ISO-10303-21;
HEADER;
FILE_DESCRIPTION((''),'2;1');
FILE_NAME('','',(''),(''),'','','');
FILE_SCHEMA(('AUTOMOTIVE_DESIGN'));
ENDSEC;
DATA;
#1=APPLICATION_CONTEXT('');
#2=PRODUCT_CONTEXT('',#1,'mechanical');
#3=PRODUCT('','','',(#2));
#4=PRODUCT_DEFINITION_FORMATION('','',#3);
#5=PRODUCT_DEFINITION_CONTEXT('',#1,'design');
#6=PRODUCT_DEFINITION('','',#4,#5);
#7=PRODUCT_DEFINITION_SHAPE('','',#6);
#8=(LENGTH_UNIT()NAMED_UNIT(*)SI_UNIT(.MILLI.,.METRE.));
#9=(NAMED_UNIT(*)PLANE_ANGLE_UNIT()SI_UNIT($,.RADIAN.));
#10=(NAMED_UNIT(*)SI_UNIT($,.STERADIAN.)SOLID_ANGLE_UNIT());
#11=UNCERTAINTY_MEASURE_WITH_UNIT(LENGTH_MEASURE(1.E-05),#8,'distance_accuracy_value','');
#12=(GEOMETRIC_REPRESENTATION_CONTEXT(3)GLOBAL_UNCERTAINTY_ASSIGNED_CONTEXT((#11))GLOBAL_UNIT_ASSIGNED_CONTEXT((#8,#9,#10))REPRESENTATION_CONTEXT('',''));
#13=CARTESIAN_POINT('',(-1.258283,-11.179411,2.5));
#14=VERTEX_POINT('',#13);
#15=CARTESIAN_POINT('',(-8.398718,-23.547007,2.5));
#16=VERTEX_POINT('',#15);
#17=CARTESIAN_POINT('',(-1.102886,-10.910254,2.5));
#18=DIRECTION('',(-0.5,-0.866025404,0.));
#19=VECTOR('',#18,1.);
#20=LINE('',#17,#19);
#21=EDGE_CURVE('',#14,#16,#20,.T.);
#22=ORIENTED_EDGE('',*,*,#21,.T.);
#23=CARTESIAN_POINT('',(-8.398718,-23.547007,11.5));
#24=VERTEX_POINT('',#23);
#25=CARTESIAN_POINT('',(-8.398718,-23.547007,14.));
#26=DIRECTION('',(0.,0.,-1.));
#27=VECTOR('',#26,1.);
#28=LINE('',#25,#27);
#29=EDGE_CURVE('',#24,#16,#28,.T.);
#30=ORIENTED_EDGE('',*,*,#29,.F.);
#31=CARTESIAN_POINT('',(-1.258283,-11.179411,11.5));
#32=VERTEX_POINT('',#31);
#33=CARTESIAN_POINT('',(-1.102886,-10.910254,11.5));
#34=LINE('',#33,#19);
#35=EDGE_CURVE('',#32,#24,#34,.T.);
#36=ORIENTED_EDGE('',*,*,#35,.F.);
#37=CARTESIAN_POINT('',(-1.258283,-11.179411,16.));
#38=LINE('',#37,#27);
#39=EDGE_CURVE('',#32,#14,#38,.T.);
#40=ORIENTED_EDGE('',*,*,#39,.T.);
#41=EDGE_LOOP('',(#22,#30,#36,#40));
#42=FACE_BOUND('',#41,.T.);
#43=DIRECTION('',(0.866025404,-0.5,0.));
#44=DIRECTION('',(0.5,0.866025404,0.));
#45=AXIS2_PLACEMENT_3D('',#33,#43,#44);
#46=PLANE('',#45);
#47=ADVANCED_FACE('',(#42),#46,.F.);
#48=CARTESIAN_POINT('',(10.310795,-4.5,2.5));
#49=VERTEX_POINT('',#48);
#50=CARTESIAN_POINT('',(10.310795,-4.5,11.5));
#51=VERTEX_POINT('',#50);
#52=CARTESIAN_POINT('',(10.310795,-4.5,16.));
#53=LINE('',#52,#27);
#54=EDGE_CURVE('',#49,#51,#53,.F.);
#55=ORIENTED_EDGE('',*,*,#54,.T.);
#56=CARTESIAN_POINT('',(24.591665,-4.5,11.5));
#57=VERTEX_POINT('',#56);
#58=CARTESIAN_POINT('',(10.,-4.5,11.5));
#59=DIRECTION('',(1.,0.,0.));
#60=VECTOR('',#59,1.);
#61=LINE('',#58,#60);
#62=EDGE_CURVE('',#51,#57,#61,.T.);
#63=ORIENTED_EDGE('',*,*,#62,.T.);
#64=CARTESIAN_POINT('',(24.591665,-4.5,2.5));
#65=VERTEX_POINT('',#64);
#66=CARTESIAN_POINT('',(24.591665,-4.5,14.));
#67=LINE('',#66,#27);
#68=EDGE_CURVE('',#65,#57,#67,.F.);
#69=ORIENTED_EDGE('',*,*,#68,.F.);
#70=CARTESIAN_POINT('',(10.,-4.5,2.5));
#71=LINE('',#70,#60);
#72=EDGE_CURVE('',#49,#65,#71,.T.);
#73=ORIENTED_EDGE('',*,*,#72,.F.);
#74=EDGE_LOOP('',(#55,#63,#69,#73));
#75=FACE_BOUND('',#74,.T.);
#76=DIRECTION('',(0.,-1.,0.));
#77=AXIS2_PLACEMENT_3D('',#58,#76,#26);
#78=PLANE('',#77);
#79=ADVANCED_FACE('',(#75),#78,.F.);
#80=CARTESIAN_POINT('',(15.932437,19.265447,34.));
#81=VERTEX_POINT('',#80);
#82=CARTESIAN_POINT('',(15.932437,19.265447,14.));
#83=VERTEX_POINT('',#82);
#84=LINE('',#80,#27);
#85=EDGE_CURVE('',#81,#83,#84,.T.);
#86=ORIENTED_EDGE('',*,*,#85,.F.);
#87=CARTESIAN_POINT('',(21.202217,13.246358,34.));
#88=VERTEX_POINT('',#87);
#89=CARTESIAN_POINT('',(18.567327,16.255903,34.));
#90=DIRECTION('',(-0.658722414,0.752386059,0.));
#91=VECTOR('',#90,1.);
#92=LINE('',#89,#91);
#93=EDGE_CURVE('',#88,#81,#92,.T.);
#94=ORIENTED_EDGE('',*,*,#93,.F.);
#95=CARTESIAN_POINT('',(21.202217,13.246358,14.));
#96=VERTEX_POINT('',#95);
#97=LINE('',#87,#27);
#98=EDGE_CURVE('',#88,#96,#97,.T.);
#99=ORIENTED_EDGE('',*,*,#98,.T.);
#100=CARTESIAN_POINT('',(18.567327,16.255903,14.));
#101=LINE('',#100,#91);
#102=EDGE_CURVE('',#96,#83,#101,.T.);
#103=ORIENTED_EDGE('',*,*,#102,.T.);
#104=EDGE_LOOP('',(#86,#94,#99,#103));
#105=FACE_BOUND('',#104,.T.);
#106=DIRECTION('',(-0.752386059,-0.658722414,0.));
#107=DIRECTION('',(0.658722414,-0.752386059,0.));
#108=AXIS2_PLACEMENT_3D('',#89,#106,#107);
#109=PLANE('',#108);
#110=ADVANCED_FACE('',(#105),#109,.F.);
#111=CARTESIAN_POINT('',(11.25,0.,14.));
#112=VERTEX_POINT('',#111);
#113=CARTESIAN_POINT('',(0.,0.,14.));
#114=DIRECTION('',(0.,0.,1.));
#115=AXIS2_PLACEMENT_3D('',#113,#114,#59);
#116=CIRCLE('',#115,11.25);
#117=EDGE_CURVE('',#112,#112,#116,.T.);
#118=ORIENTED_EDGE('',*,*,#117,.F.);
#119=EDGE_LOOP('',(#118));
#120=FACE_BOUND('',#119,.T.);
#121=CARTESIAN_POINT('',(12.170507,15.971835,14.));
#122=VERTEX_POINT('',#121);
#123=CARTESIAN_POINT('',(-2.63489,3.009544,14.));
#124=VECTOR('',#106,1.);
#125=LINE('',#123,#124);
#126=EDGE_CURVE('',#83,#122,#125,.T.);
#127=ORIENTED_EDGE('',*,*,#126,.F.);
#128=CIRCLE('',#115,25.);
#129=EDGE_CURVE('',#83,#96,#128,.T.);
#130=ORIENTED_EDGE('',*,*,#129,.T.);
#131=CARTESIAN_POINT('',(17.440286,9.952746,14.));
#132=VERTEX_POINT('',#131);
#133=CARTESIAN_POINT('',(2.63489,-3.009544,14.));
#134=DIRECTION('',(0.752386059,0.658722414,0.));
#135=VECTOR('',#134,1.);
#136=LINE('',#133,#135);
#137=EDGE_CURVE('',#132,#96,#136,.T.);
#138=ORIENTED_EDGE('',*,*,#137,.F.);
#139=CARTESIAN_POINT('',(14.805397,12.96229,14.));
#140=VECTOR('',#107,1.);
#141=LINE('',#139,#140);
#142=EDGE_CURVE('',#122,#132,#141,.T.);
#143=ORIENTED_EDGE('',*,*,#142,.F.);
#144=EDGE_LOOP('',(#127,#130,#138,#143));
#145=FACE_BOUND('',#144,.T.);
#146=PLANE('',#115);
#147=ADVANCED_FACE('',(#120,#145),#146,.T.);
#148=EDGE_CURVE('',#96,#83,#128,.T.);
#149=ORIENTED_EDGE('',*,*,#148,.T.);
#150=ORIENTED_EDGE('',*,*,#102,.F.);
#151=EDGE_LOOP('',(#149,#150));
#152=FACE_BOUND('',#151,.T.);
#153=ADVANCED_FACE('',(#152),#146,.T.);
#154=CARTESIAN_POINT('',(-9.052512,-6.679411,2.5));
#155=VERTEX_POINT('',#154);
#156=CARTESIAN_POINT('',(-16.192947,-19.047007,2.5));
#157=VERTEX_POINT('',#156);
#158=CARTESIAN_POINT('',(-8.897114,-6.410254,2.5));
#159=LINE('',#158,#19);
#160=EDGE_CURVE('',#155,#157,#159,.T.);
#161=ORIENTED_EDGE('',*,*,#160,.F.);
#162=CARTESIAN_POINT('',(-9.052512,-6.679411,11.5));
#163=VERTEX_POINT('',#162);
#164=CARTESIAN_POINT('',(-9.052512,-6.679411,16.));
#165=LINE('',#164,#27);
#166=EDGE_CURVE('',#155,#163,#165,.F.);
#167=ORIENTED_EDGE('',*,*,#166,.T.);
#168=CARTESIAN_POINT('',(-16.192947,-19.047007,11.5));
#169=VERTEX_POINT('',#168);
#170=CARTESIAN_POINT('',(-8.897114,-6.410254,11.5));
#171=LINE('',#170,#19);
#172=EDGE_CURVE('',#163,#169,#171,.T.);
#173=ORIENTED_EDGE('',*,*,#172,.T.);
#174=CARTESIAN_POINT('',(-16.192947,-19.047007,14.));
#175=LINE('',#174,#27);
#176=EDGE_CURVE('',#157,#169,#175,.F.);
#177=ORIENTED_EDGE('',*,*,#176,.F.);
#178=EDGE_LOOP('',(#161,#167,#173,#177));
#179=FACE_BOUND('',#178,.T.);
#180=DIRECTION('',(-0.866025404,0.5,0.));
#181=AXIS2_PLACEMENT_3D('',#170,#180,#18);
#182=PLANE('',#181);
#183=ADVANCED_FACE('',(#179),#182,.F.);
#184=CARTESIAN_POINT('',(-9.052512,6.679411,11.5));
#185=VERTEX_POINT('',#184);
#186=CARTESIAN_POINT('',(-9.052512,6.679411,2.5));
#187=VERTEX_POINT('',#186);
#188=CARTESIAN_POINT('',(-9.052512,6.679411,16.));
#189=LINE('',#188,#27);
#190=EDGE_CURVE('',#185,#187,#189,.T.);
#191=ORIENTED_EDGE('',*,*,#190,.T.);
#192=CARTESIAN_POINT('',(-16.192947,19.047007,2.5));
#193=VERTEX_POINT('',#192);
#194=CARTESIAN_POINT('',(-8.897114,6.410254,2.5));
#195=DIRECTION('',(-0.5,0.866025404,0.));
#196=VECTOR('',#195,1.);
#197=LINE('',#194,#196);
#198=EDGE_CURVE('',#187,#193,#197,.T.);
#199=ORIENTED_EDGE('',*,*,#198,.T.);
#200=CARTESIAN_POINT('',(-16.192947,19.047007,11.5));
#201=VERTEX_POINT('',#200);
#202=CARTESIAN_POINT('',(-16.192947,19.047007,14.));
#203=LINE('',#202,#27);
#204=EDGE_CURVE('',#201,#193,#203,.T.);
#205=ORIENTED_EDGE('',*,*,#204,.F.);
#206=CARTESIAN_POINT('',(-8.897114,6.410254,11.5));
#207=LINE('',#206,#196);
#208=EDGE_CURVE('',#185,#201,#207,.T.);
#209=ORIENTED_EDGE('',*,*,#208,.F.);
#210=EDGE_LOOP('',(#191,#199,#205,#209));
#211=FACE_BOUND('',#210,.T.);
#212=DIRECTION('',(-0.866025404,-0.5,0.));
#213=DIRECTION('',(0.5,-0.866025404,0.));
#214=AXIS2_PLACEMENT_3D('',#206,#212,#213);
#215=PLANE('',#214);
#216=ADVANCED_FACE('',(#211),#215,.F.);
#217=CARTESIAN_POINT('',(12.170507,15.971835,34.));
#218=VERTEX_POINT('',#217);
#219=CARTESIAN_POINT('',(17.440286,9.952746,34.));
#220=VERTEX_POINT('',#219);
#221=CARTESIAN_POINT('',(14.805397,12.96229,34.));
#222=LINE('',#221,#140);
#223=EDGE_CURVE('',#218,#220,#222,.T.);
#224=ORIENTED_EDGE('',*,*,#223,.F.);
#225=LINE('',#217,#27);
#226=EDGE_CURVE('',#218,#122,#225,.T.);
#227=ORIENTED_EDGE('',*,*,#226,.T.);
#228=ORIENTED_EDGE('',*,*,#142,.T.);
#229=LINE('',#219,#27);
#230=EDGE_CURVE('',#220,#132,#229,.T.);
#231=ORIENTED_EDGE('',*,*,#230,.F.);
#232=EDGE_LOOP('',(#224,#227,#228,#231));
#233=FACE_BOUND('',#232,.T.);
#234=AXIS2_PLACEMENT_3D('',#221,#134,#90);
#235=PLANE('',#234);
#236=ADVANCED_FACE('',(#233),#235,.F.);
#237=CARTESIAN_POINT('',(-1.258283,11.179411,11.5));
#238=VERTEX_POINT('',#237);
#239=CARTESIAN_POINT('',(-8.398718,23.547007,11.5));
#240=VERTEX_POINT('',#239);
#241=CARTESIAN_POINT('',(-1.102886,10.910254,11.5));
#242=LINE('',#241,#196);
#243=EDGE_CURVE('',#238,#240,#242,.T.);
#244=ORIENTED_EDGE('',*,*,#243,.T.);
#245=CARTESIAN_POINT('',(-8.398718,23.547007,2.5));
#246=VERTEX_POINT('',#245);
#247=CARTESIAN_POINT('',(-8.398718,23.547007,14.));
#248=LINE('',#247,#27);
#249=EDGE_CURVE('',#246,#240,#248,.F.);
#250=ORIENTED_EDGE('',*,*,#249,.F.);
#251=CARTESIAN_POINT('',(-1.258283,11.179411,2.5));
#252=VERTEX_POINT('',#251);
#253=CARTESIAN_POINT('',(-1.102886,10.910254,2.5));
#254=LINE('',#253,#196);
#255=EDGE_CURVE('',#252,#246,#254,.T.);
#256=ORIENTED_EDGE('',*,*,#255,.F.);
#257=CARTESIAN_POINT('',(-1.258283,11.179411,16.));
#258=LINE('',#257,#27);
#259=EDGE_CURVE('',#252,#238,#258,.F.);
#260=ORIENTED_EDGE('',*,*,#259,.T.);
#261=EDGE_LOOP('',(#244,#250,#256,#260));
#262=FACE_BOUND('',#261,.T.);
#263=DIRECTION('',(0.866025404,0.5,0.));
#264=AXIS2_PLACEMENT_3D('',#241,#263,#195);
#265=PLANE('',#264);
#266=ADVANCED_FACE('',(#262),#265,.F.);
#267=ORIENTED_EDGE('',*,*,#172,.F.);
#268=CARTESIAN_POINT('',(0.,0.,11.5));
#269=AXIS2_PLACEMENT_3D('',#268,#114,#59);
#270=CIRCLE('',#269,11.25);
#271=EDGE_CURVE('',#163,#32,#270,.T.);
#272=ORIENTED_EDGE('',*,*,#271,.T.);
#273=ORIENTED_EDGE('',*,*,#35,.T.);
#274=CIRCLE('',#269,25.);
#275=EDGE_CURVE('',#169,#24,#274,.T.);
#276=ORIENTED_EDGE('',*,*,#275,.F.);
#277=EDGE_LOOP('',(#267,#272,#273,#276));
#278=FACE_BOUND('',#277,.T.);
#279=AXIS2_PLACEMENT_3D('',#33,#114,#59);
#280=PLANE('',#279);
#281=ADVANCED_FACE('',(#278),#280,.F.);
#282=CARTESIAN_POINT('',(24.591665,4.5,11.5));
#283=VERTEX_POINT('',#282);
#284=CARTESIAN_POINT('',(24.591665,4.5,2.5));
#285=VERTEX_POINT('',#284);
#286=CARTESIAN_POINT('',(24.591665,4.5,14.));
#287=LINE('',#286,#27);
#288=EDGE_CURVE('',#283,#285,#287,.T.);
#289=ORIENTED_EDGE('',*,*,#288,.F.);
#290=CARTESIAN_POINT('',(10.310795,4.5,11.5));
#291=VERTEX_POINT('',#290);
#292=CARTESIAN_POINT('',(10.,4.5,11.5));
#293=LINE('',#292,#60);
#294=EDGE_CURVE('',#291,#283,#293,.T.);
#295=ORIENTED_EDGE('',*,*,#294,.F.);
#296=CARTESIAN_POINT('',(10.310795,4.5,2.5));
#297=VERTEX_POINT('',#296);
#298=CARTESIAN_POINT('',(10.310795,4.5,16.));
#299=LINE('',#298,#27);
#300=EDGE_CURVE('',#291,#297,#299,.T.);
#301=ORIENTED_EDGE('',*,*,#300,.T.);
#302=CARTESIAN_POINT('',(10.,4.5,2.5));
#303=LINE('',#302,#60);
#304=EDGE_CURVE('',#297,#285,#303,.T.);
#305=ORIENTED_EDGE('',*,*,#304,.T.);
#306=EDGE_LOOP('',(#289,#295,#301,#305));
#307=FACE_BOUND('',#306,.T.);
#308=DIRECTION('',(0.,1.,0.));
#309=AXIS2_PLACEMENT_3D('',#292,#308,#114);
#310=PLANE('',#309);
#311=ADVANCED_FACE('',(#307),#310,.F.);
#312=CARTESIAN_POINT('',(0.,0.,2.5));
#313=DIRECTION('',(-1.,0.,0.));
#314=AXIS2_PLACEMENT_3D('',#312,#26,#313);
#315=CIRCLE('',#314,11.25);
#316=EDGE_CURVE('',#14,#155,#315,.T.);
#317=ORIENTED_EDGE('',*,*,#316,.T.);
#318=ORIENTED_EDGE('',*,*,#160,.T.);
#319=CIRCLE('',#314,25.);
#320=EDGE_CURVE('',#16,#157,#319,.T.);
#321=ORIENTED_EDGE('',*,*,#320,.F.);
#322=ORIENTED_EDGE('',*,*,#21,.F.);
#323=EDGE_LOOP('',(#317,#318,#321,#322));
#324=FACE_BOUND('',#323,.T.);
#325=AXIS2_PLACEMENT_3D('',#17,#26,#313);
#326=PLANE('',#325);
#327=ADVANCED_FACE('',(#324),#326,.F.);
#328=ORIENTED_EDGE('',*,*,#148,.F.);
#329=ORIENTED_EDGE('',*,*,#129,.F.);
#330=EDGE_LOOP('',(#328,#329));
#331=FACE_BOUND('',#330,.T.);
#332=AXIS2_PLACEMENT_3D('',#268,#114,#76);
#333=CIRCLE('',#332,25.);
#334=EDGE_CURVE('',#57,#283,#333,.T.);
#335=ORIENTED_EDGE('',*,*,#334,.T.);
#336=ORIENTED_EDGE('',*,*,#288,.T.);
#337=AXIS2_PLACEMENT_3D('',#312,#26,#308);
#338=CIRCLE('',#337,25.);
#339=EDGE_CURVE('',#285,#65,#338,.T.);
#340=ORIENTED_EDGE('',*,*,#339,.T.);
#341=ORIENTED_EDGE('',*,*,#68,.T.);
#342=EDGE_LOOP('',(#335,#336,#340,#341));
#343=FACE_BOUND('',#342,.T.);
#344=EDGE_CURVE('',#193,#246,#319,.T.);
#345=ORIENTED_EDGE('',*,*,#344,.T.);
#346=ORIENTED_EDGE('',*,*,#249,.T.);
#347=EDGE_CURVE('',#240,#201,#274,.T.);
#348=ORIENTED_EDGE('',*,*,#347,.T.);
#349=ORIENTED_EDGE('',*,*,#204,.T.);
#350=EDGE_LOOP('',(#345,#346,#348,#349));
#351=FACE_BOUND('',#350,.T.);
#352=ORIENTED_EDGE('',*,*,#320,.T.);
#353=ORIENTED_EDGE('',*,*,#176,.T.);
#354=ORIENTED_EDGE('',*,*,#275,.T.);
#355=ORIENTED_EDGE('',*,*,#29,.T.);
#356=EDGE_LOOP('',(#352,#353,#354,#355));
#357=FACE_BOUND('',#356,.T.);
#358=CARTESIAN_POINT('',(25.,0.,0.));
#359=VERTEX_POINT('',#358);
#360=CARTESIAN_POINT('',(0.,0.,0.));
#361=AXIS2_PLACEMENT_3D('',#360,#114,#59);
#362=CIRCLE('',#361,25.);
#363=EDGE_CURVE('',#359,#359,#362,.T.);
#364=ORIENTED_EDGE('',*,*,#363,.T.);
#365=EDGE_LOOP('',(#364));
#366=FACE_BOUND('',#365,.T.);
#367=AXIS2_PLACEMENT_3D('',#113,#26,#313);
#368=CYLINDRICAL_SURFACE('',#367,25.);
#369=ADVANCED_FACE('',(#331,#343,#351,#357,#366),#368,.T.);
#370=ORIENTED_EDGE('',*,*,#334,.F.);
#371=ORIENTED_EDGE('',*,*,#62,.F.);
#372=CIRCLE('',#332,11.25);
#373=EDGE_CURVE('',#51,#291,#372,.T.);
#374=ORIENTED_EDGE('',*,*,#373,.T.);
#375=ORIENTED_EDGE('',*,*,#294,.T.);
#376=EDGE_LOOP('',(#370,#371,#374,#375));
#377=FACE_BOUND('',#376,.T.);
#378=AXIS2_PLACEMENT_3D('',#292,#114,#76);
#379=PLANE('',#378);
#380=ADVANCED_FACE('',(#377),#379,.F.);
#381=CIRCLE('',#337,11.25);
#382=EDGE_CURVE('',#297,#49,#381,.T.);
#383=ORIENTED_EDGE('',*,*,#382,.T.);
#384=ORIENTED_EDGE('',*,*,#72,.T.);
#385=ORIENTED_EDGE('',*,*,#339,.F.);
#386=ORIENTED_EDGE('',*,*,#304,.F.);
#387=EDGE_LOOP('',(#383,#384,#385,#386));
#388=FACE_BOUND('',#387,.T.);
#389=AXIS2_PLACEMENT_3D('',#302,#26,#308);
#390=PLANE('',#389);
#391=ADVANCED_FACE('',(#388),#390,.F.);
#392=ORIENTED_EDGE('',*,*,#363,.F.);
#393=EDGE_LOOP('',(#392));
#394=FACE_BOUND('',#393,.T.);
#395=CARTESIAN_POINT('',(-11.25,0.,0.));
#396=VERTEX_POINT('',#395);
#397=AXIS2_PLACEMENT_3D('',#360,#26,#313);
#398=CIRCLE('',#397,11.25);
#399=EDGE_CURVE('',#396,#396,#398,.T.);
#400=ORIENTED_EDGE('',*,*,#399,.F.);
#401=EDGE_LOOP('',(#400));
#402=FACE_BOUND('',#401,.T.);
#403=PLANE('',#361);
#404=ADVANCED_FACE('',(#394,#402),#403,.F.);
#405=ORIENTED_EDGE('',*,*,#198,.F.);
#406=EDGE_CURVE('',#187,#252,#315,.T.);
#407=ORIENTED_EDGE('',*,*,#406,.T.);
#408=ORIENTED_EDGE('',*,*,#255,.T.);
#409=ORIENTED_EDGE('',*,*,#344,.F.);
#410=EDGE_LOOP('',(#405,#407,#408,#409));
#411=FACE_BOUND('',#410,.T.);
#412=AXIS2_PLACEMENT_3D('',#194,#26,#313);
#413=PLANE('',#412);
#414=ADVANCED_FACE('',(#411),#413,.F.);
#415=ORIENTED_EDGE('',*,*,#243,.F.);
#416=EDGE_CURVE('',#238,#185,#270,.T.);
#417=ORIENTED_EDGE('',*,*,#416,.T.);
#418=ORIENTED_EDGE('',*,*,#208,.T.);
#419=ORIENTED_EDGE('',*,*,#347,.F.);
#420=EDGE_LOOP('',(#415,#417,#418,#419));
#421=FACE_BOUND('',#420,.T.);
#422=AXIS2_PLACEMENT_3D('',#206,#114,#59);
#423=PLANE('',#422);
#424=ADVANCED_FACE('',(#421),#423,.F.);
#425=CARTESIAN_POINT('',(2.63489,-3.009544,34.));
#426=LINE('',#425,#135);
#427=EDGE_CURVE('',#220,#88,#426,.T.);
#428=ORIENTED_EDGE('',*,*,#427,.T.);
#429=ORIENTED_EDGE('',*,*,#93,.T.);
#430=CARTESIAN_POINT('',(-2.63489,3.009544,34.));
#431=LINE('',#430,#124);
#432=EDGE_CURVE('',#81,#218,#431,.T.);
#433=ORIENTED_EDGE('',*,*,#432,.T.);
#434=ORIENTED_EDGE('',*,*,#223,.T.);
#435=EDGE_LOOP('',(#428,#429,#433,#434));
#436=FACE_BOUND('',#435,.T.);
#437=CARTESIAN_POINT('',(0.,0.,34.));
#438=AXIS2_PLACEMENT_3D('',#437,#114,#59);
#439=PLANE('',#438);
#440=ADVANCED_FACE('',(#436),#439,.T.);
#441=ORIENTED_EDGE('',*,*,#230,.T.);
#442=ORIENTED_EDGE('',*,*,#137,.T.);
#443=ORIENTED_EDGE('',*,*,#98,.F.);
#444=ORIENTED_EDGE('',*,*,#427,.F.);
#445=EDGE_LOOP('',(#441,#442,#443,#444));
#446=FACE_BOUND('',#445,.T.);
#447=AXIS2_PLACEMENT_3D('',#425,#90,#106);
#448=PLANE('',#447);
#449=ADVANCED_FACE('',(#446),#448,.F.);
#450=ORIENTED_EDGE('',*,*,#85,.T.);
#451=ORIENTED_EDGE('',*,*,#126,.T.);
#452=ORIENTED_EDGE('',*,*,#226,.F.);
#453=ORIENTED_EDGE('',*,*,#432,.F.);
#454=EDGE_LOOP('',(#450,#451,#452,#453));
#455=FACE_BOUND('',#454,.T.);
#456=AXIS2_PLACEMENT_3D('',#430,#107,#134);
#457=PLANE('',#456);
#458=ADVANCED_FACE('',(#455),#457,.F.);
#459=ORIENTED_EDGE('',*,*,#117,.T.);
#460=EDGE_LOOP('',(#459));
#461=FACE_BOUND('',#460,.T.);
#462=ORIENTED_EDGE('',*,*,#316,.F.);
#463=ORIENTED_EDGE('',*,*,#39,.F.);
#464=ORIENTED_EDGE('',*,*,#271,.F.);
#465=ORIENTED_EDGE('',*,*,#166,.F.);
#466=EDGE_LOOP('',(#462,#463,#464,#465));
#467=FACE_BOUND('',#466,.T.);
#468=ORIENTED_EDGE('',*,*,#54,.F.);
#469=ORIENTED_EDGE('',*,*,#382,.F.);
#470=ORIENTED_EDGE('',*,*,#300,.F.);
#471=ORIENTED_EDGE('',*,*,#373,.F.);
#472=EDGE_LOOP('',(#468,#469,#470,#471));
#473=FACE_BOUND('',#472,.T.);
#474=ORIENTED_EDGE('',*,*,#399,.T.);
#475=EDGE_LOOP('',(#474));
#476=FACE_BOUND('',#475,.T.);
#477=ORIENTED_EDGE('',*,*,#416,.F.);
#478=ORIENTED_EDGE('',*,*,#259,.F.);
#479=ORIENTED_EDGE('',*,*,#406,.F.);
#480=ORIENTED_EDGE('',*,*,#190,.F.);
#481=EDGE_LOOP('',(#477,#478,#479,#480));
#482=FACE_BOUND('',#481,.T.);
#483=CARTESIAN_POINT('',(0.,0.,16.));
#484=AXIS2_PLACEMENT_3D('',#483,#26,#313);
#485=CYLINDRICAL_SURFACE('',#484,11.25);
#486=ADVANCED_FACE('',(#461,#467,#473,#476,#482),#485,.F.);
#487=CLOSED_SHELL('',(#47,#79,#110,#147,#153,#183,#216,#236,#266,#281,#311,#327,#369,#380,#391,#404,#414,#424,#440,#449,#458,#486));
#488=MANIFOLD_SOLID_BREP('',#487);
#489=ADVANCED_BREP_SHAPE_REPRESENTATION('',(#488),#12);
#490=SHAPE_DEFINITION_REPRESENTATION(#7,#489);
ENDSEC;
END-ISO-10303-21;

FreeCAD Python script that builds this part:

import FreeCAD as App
import Part
import Sketcher
from FreeCAD import Vector


def add_polygon(sketch, points):
    """Adds a closed chain of lines whose ends are joined by coincident constraints."""
    first, n = sketch.GeometryCount, len(points)
    for a, b in zip(points, points[1:] + points[:1]):
        sketch.addGeometry(Part.LineSegment(App.Vector(*a, 0), App.Vector(*b, 0)), False)
    for i in range(n):
        sketch.addConstraint(Sketcher.Constraint("Coincident", first + i, 2, first + (i + 1) % n, 1))

doc = App.newDocument("Part")
body = doc.addObject("PartDesign::Body", "Body")

sketch1 = doc.addObject("Sketcher::SketchObject", "Sketch")
body.addObject(sketch1)
sketch1.AttachmentSupport = (doc.XY_Plane, [""])
sketch1.MapMode = "FlatFace"
sketch1.addGeometry(Part.Circle(Vector(0, 0, 0), Vector(0, 0, 1), 25), False)
sketch1.addConstraint(Sketcher.Constraint("Coincident", 0, 3, -1, 1))
sketch1.addConstraint(Sketcher.Constraint("Diameter", 0, 50.0))
pad1 = doc.addObject("PartDesign::Pad", "Pad")
body.addObject(pad1)
pad1.Profile = sketch1
pad1.Length = 14

sketch2 = doc.addObject("Sketcher::SketchObject", "Sketch001")
body.addObject(sketch2)
sketch2.AttachmentSupport = (doc.YZ_Plane, [""])
sketch2.MapMode = "FlatFace"
sketch2.AttachmentOffset = App.Placement(Vector(0, 0, 26), App.Rotation())
add_polygon(sketch2, [(4, 12), (-4, 12), (-4, 2), (4, 2)])
sketch2.addConstraint(Sketcher.Constraint("Horizontal", 0))
sketch2.addConstraint(Sketcher.Constraint("Vertical", 1))
sketch2.addConstraint(Sketcher.Constraint("Horizontal", 2))
sketch2.addConstraint(Sketcher.Constraint("Vertical", 3))
sketch2.addConstraint(Sketcher.Constraint("Equal", 2, 1))
sketch2.addConstraint(Sketcher.Constraint("DistanceX", 0, 2, 0, 1, 9.0))
sketch2.addConstraint(Sketcher.Constraint("DistanceX", 0, 2, -1, 1, 4.5))
sketch2.addConstraint(Sketcher.Constraint("DistanceY", -1, 1, 0, 2, 11.5))
pocket1 = doc.addObject("PartDesign::Pocket", "Pocket")
body.addObject(pocket1)
pocket1.Profile = sketch2
pocket1.Length = 16
doc.recompute()

polarpattern = doc.addObject("PartDesign::PolarPattern", "PolarPattern")
body.addObject(polarpattern)
polarpattern.Originals = [pocket1]
polarpattern.Axis = (doc.Z_Axis, [""])
polarpattern.Angle = 360
polarpattern.Occurrences = 3
body.Tip = polarpattern

sketch3 = doc.addObject("Sketcher::SketchObject", "Sketch002")
body.addObject(sketch3)
sketch3.AttachmentSupport = (doc.XY_Plane, [""])
sketch3.MapMode = "FlatFace"
sketch3.addGeometry(Part.Circle(Vector(0, 0, 0), Vector(0, 0, 1), 11), False)
sketch3.addConstraint(Sketcher.Constraint("Coincident", 0, 3, -1, 1))
sketch3.addConstraint(Sketcher.Constraint("Diameter", 0, 22.5))
pocket2 = doc.addObject("PartDesign::Pocket", "Pocket001")
body.addObject(pocket2)
pocket2.Profile = sketch3
pocket2.Length = 16
pocket2.Reversed = True

sketch4 = doc.addObject("Sketcher::SketchObject", "Sketch003")
body.addObject(sketch4)
sketch4.AttachmentSupport = (doc.XY_Plane, [""])
sketch4.MapMode = "FlatFace"
sketch4.AttachmentOffset = App.Placement(Vector(0, 0, 14), App.Rotation())
add_polygon(sketch4, [(15.9, 19.3), (21.2, 13.2), (17.4, 10), (12.2, 16)])
sketch4.addConstraint(Sketcher.Constraint("Perpendicular", 0, 1))
sketch4.addConstraint(Sketcher.Constraint("Perpendicular", 1, 2))
sketch4.addConstraint(Sketcher.Constraint("Perpendicular", 2, 3))
sketch4.addConstraint(Sketcher.Constraint("Distance", 0, 8.0))
sketch4.addConstraint(Sketcher.Constraint("Distance", 1, 5.0))
sketch4.addConstraint(Sketcher.Constraint("DistanceY", 1, 2, 3, 2, 9.312701))
sketch4.addConstraint(Sketcher.Constraint("DistanceY", -1, 1, 0, 2, 13.246358))
sketch4.addConstraint(Sketcher.Constraint("DistanceX", -1, 1, 0, 2, 21.202217))
pad2 = doc.addObject("PartDesign::Pad", "Pad001")
body.addObject(pad2)
pad2.Profile = sketch4
pad2.Length = 20

doc.recompute()
